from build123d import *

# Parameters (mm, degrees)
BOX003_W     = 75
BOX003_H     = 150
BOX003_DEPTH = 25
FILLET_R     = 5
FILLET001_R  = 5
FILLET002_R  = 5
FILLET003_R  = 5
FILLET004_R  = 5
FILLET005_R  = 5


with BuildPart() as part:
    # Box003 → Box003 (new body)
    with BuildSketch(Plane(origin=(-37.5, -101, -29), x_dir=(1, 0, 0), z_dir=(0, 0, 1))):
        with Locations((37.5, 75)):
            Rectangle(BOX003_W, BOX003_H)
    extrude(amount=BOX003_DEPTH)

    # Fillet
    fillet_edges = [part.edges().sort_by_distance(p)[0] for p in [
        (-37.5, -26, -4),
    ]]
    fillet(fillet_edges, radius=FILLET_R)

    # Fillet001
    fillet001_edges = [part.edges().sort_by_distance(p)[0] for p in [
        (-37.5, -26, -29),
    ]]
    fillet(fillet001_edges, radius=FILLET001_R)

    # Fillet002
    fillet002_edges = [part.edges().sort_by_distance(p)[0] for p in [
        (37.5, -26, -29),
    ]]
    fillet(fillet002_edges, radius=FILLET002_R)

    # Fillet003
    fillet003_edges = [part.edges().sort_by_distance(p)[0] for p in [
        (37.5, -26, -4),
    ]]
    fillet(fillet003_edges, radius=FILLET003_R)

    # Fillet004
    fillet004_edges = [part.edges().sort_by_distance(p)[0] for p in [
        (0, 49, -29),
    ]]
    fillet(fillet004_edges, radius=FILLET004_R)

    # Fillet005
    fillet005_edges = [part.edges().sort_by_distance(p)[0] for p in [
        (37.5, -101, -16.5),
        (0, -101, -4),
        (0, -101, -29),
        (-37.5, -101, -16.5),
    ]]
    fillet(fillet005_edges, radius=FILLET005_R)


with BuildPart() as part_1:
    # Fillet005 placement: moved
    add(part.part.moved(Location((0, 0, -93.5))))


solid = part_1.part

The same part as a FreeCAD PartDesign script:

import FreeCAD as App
import Part
import Sketcher

V = App.Vector
Q = App.Units.Quantity


def edges_at(feature, points):
    """Names of the edges that pass closest to the given points."""
    edges = feature.Shape.Edges
    near = lambda p: min(range(len(edges)), key=lambda i: edges[i].distToShape(Part.Vertex(*p))[0])
    return sorted({f"Edge{near(p) + 1}" for p in points})


def add_polygon(sketch, points):
    """Adds a closed chain of lines whose ends are joined by coincident constraints."""
    first, n = sketch.GeometryCount, len(points)
    for a, b in zip(points, points[1:] + points[:1]):
        sketch.addGeometry(Part.LineSegment(App.Vector(*a, 0), App.Vector(*b, 0)), False)
    for i in range(n):
        sketch.addConstraint(Sketcher.Constraint("Coincident", first + i, 2, first + (i + 1) % n, 1))

doc = App.newDocument("Part")
body = doc.addObject("PartDesign::Body", "Body")

# Sketch on XY plane
sketch1 = doc.addObject("Sketcher::SketchObject", "Sketch")
body.addObject(sketch1)
sketch1.AttachmentSupport = (doc.XY_Plane, [""])
sketch1.MapMode = "FlatFace"
sketch1.AttachmentOffset = App.Placement(V(0, 0, -29), App.Rotation())
add_polygon(sketch1, [(-38, 49), (-38, -101), (38, -101), (38, 49)])  # lines 0-3
sketch1.addConstraint([
    Sketcher.Constraint("Vertical", 0),
    Sketcher.Constraint("Horizontal", 1),
    Sketcher.Constraint("Vertical", 2),
    Sketcher.Constraint("Horizontal", 3),
    Sketcher.Constraint("DistanceX", 1, 1, 1, 2, Q("75 mm")),
    Sketcher.Constraint("DistanceY", 0, 2, 0, 1, Q("150 mm")),
    Sketcher.Constraint("DistanceY", 0, 2, -1, 1, Q("101 mm")),
    Sketcher.Constraint("DistanceX", 0, 2, -1, 1, Q("37.5 mm")),
])
pad1 = doc.addObject("PartDesign::Pad", "Pad")
body.addObject(pad1)
pad1.Profile = sketch1
pad1.Length = 25
doc.recompute()

fillet = doc.addObject("PartDesign::Fillet", "Fillet")
body.addObject(fillet)
fillet.Base = (pad1, edges_at(pad1, [(-37.5, -26, -4)]))
fillet.Radius = 5
doc.recompute()

fillet2 = doc.addObject("PartDesign::Fillet", "Fillet001")
body.addObject(fillet2)
fillet2.Base = (fillet, edges_at(fillet, [(-37.5, -26, -29)]))
fillet2.Radius = 5
doc.recompute()

fillet3 = doc.addObject("PartDesign::Fillet", "Fillet002")
body.addObject(fillet3)
fillet3.Base = (fillet2, edges_at(fillet2, [(37.5, -26, -29)]))
fillet3.Radius = 5
doc.recompute()

fillet4 = doc.addObject("PartDesign::Fillet", "Fillet003")
body.addObject(fillet4)
fillet4.Base = (fillet3, edges_at(fillet3, [(37.5, -26, -4)]))
fillet4.Radius = 5
doc.recompute()

fillet5 = doc.addObject("PartDesign::Fillet", "Fillet004")
body.addObject(fillet5)
fillet5.Base = (fillet4, edges_at(fillet4, [(0, 49, -29)]))
fillet5.Radius = 5
doc.recompute()

fillet6 = doc.addObject("PartDesign::Fillet", "Fillet005")
body.addObject(fillet6)
fillet6.Base = (fillet5, edges_at(fillet5, [
    (37.5, -101, -16.5),
    (0, -101, -4),
    (0, -101, -29),
    (-37.5, -101, -16.5),
]))
fillet6.Radius = 5
body2 = doc.addObject("PartDesign::Body", "Body001")
doc.recompute()

body.Placement = App.Placement(V(0, 0, -93.5), App.Rotation(V(0, 0, 1), 0))
boolean = doc.addObject("PartDesign::Boolean", "Boolean")
body2.addObject(boolean)
boolean.Type = "Fuse"
boolean.addObjects([body])

doc.recompute()
